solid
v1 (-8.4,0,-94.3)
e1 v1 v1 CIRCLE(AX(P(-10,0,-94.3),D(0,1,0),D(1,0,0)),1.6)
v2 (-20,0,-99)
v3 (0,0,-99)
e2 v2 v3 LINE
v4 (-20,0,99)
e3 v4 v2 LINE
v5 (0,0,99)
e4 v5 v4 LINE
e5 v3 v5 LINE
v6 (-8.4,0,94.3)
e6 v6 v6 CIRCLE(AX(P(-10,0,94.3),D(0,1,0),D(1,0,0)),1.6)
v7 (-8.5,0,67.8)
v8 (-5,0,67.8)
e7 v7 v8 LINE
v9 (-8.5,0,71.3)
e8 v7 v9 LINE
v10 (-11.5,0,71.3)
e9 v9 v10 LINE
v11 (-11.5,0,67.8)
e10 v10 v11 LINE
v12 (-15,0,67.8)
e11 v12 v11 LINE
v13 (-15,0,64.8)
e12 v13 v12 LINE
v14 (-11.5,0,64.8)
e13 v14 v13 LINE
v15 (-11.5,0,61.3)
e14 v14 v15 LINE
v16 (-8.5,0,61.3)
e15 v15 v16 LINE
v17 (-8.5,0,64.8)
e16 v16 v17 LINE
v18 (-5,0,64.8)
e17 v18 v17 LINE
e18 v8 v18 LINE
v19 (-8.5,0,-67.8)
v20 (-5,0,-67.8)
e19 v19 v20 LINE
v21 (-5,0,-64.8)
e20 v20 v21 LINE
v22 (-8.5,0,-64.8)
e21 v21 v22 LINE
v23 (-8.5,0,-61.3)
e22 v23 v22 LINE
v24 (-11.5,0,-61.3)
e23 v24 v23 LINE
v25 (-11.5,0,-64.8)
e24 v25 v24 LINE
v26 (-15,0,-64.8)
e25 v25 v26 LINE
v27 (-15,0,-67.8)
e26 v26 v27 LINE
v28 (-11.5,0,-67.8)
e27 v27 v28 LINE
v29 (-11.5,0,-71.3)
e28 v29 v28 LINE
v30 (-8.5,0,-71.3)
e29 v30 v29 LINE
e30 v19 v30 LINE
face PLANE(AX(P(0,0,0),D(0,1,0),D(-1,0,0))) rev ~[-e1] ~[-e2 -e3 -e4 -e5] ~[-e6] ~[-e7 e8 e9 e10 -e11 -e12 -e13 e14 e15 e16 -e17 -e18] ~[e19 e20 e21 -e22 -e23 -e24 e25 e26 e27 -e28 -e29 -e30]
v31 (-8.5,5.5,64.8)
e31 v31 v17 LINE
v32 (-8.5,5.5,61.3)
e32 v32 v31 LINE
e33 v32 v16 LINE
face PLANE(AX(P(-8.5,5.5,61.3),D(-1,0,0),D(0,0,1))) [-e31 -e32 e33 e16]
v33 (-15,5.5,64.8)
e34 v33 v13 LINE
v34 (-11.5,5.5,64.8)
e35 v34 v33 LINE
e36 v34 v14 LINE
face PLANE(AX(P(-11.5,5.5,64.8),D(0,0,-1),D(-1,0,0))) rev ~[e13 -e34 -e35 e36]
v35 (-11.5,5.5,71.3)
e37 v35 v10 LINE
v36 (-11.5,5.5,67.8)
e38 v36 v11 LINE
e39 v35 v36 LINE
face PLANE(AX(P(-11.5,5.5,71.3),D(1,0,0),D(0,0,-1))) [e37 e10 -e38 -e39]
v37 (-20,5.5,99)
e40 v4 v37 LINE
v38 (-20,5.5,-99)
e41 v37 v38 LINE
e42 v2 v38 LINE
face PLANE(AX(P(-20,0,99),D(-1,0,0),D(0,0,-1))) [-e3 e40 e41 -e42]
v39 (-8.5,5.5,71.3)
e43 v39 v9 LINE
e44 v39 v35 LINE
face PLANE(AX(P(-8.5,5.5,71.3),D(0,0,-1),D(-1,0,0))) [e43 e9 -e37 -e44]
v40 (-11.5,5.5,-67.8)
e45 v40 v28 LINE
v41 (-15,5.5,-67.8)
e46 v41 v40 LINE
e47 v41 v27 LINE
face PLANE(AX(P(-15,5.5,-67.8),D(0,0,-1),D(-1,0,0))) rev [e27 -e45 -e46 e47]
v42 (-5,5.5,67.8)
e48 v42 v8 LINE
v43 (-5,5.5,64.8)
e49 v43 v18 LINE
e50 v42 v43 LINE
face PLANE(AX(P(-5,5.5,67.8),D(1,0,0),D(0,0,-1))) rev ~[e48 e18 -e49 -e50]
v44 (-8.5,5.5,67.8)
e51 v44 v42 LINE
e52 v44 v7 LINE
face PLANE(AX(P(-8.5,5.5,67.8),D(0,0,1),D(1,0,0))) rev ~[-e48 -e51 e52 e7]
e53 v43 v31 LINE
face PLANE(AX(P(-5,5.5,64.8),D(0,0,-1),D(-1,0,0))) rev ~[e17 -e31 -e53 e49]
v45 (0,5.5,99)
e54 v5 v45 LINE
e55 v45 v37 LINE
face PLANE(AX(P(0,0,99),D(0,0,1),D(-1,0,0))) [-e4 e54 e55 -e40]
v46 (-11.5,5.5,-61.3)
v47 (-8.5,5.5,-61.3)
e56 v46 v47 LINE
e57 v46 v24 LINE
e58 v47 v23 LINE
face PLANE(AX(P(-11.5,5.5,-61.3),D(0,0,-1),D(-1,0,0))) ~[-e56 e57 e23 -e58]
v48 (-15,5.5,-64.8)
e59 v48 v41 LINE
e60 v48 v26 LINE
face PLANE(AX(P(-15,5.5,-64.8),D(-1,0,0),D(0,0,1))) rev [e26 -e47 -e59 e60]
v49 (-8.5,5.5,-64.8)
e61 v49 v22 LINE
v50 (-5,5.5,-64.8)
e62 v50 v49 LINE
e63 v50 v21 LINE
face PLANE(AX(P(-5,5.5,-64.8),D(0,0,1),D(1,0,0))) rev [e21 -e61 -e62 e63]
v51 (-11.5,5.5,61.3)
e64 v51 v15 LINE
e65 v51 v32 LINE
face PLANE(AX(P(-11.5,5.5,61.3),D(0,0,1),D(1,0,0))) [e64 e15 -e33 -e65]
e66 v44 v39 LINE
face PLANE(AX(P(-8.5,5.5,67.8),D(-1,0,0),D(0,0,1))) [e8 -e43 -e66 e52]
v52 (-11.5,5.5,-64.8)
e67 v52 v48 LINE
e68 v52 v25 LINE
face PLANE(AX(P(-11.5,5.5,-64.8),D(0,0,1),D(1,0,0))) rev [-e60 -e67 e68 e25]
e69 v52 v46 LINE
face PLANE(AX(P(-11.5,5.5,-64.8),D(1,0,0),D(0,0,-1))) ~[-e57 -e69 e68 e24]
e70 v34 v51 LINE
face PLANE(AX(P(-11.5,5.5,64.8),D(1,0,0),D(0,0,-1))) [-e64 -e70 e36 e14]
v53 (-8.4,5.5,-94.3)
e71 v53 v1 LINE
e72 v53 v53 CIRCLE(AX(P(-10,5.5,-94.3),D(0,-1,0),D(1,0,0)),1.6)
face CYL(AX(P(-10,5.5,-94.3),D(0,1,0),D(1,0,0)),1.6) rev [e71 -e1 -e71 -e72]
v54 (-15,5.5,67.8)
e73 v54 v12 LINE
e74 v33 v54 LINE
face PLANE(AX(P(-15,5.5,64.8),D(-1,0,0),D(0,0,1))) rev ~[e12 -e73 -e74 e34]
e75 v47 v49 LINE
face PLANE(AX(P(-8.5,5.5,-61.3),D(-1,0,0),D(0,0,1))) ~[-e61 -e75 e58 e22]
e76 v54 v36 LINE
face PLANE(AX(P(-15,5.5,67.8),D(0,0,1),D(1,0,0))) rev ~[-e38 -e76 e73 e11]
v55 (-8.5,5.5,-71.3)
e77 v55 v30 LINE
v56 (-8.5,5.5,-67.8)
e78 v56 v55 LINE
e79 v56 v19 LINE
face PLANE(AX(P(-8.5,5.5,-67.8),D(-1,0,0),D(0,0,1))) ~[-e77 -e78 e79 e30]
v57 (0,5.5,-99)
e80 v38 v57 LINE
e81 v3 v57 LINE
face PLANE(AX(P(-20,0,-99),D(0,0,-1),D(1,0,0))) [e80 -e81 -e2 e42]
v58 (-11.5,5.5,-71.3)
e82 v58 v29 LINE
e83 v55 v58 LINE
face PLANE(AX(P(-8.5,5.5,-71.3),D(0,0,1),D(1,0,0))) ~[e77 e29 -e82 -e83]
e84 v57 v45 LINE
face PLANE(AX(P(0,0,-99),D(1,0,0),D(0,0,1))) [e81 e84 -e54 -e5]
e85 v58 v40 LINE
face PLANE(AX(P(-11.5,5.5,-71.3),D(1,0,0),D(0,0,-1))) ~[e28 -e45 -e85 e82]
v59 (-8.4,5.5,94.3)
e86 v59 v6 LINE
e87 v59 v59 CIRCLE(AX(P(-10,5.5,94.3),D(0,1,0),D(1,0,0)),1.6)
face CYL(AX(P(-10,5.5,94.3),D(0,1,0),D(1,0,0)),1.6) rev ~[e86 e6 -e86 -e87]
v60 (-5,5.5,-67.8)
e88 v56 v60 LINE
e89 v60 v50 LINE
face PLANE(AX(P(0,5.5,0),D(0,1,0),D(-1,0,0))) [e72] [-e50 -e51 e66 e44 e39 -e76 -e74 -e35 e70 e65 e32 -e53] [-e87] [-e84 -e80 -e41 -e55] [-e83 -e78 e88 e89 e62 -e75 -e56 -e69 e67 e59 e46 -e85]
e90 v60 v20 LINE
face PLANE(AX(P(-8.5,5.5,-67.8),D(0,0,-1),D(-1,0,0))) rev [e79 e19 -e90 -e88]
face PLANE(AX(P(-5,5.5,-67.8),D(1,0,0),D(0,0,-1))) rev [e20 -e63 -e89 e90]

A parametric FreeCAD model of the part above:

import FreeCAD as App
import Part
import Sketcher

V = App.Vector


def add_polygon(sketch, points):
    """Adds a closed chain of lines whose ends are joined by coincident constraints."""
    first, n = sketch.GeometryCount, len(points)
    for a, b in zip(points, points[1:] + points[:1]):
        sketch.addGeometry(Part.LineSegment(App.Vector(*a, 0), App.Vector(*b, 0)), False)
    for i in range(n):
        sketch.addConstraint(Sketcher.Constraint("Coincident", first + i, 2, first + (i + 1) % n, 1))

doc = App.newDocument("Part")
body = doc.addObject("PartDesign::Body", "Body")

# Sketch on XZ plane
sketch1 = body.newObject("Sketcher::SketchObject", "Sketch")
sketch1.AttachmentSupport = (doc.getObject("XZ_Plane"), [""])
sketch1.MapMode = "FlatFace"
add_polygon(sketch1, [(-20, 99), (0, 99), (0, -99), (-20, -99)])  # lines 0-3
sketch1.addConstraint([
    Sketcher.Constraint("Horizontal", 0),
    Sketcher.Constraint("Vertical", 1),
    Sketcher.Constraint("Horizontal", 2),
    Sketcher.Constraint("Vertical", 3),
    Sketcher.Constraint("Symmetric", 0, 2, 1, 2, -1, 1),
    Sketcher.Constraint("DistanceX", 0, 1, 0, 2, 20.0),
    Sketcher.Constraint("DistanceY", 1, 2, 1, 1, 198.0),
])
pad1 = body.newObject("PartDesign::Pad", "Pad")
pad1.Profile = sketch1
pad1.Length = 5.5
pad1.Reversed = True

# Sketch on XZ plane
sketch2 = body.newObject("Sketcher::SketchObject", "Sketch001")
sketch2.AttachmentSupport = (doc.getObject("XZ_Plane"), [""])
sketch2.MapMode = "FlatFace"
sketch2.AttachmentOffset = App.Placement(V(0, 0, -5.5), App.Rotation())
add_polygon(sketch2, [(-15, 64.8), (-15, 67.8), (-11.5, 67.8), (-11.5, 71.3), (-8.5, 71.3), (-8.5, 67.8), (-5, 67.8), (-5, 64.8), (-8.5, 64.8), (-8.5, 61.3), (-11.5, 61.3), (-11.5, 64.8)])  # lines 0-11
sketch2.addGeometry(Part.Circle(V(-10, 94.3, 0), V(0, 0, 1), 1.6), False)  # 12
sketch2.addConstraint([
    Sketcher.Constraint("Vertical", 0),
    Sketcher.Constraint("Horizontal", 1),
    Sketcher.Constraint("Vertical", 2),
    Sketcher.Constraint("Horizontal", 3),
    Sketcher.Constraint("Vertical", 4),
    Sketcher.Constraint("Horizontal", 5),
    Sketcher.Constraint("Vertical", 6),
    Sketcher.Constraint("Horizontal", 7),
    Sketcher.Constraint("Vertical", 8),
    Sketcher.Constraint("Horizontal", 9),
    Sketcher.Constraint("Vertical", 10),
    Sketcher.Constraint("Horizontal", 11),
    Sketcher.Constraint("Horizontal", 1, 2, 4, 2),
    Sketcher.Constraint("Horizontal", 7, 2, 10, 2),
    Sketcher.Constraint("Vertical", 4, 2, 7, 2),
    Sketcher.Constraint("Vertical", 2, 2, 9, 2),
    Sketcher.Constraint("Equal", 1, 5),
    Sketcher.Constraint("Equal", 9, 0),
    Sketcher.Constraint("Equal", 11, 2),
    Sketcher.Constraint("Equal", 4, 8),
    Sketcher.Constraint("Diameter", 12, 3.2),
    Sketcher.Constraint("DistanceX", 3, 1, 3, 2, 3.0),
    Sketcher.Constraint("DistanceX", 12, 3, -1, 1, 10.0),
    Sketcher.Constraint("DistanceX", 0, 2, 5, 2, 10.0),
    Sketcher.Constraint("DistanceX", 0, 2, -1, 1, 15.0),
    Sketcher.Constraint("DistanceY", 2, 2, 12, 3, 23.0),
    Sketcher.Constraint("DistanceY", -1, 1, 12, 3, 94.3),
])
pocket1 = body.newObject("PartDesign::Pocket", "Pocket")
pocket1.Profile = sketch2
pocket1.Type = "ThroughAll"
pocket1.Reversed = True
doc.recompute()

mirrored = body.newObject("PartDesign::Mirrored", "Mirrored")
mirrored.Originals = [pocket1]
mirrored.MirrorPlane = (doc.getObject("XY_Plane"), [""])
body.Tip = mirrored

doc.recompute()
